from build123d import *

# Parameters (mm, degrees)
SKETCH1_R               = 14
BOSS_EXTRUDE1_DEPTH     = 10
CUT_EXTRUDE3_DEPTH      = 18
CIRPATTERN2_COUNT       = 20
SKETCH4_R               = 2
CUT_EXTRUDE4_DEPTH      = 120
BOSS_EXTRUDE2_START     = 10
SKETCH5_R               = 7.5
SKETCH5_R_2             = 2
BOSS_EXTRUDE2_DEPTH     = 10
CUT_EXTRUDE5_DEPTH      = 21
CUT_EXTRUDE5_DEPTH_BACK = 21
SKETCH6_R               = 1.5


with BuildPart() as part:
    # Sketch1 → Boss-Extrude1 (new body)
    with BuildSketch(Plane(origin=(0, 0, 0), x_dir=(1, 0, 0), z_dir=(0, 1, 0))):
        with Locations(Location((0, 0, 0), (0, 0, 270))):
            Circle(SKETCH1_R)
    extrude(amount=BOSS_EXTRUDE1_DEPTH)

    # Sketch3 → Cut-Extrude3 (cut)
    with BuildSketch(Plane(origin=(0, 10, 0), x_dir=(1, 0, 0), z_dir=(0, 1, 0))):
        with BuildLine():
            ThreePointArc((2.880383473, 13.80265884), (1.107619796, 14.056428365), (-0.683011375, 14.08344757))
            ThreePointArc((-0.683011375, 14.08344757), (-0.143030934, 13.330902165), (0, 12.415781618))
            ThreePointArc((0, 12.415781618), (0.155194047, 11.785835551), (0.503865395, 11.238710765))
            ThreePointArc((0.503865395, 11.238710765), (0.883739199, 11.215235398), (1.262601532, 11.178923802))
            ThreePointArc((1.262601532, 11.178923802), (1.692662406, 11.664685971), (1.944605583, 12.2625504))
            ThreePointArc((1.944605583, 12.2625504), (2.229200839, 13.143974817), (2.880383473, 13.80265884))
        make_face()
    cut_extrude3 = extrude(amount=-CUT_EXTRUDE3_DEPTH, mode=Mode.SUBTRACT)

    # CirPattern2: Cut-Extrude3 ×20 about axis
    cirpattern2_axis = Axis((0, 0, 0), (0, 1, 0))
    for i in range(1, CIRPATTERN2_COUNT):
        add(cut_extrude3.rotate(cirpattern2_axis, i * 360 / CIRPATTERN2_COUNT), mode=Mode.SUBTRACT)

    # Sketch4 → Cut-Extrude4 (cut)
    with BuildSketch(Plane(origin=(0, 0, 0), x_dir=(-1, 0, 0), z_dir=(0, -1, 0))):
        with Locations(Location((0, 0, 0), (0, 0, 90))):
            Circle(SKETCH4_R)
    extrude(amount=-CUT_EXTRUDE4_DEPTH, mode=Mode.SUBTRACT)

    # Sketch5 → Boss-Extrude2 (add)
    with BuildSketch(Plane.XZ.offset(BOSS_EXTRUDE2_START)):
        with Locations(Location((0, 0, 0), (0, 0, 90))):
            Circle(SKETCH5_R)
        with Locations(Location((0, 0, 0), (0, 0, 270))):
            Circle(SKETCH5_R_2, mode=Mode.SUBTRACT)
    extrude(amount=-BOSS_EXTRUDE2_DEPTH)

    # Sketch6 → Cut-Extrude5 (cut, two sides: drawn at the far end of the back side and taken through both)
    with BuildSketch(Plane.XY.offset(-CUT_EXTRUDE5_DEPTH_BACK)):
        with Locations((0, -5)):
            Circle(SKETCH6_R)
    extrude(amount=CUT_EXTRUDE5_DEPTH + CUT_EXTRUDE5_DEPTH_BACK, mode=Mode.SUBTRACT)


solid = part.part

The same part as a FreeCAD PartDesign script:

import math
import FreeCAD as App
import Part
import Sketcher
Q = App.Units.Quantity

doc = App.newDocument("Part")
body = doc.addObject("PartDesign::Body", "Body")

# Sketch on XZ plane
sketch1 = body.newObject("Sketcher::SketchObject", "Sketch")
sketch1.AttachmentSupport = (doc.getObject("XZ_Plane"), [""])
sketch1.MapMode = "FlatFace"
sketch1.addGeometry(Part.Circle(App.Vector(0, 0, 0), App.Vector(0, 0, 1), 14), False)
sketch1.addConstraint([
    Sketcher.Constraint("Coincident", 0, 3, -1, 1),
    Sketcher.Constraint("Diameter", 0, Q("28 mm")),
])
pad1 = body.newObject("PartDesign::Pad", "Pad")
pad1.Profile = sketch1
pad1.Length = 10
pad1.Reversed = True

# Sketch on XZ plane
sketch2 = body.newObject("Sketcher::SketchObject", "Sketch001")
sketch2.AttachmentSupport = (doc.getObject("XZ_Plane"), [""])
sketch2.MapMode = "FlatFace"
sketch2.AttachmentOffset = App.Placement(App.Vector(0, 0, -10), App.Rotation())
sketch2.addGeometry([
    Part.ArcOfCircle(Part.Circle(App.Vector(0, 0, 0), App.Vector(0, 0, 1), 14.1), math.radians(-92.78), math.radians(-78.21)),  # 0
    Part.ArcOfCircle(Part.Circle(App.Vector(-2, -12.6, 0), App.Vector(0, 0, 1), 2), math.radians(-49), math.radians(5)),  # 1
    Part.ArcOfCircle(Part.Circle(App.Vector(2, -12.6, 0), App.Vector(0, 0, 1), 2), math.radians(138), math.radians(175)),  # 2
    Part.ArcOfCircle(Part.Circle(App.Vector(0, 0, 0), App.Vector(0, 0, 1), 11.2), math.radians(-87.43), math.radians(-83.56)),  # 3
    Part.ArcOfCircle(Part.Circle(App.Vector(0, -12.7, 0), App.Vector(0, 0, 1), 2), math.radians(14), math.radians(51)),  # 4
    Part.ArcOfCircle(Part.Circle(App.Vector(3.9, -12.1, 0), App.Vector(0, 0, 1), 2), math.radians(-175), math.radians(-122)),  # 5
], False)
sketch2.addConstraint([
    Sketcher.Constraint("Coincident", 0, 1, 1, 1),
    Sketcher.Constraint("Coincident", 1, 2, 2, 2),
    Sketcher.Constraint("Coincident", 2, 1, 3, 1),
    Sketcher.Constraint("Coincident", 3, 2, 4, 2),
    Sketcher.Constraint("Coincident", 4, 1, 5, 1),
    Sketcher.Constraint("Coincident", 5, 2, 0, 2),
    Sketcher.Constraint("Coincident", 0, 3, -1, 1),
    Sketcher.Constraint("Coincident", 3, 3, -1, 1),
    Sketcher.Constraint("Equal", 1, 2),
    Sketcher.Constraint("Equal", 2, 4),
    Sketcher.Constraint("Equal", 4, 5),
    Sketcher.Constraint("Symmetric", 1, 3, 2, 3, -2),
    Sketcher.Constraint("PointOnObject", 4, 3, -2),
    Sketcher.Constraint("Radius", 1, Q("2 mm")),
    Sketcher.Constraint("Radius", 0, Q("14.1 mm")),
    Sketcher.Constraint("Radius", 3, Q("11.249999 mm")),
    Sketcher.Constraint("DistanceY", 4, 3, -1, 1, Q("12.73 mm")),
    Sketcher.Constraint("DistanceX", 1, 3, -1, 1, Q("1.99382 mm")),
    Sketcher.Constraint("DistanceY", 1, 3, -1, 1, Q("12.572891 mm")),
    Sketcher.Constraint("DistanceY", 5, 3, -1, 1, Q("12.105441 mm")),
    Sketcher.Constraint("DistanceY", 4, 1, -1, 1, Q("12.26255 mm")),
])
pocket1 = body.newObject("PartDesign::Pocket", "Pocket")
pocket1.Profile = sketch2
pocket1.Length = 18
pocket1.Reversed = True
doc.recompute()

polarpattern = body.newObject("PartDesign::PolarPattern", "PolarPattern")
polarpattern.Originals = [pocket1]
polarpattern.Axis = (doc.getObject("Y_Axis"), [""])
polarpattern.Angle = 360
polarpattern.Occurrences = 20
body.Tip = polarpattern

# Sketch on XZ plane
sketch3 = body.newObject("Sketcher::SketchObject", "Sketch002")
sketch3.AttachmentSupport = (doc.getObject("XZ_Plane"), [""])
sketch3.MapMode = "FlatFace"
sketch3.addGeometry(Part.Circle(App.Vector(0, 0, 0), App.Vector(0, 0, 1), 2), False)
sketch3.addConstraint([
    Sketcher.Constraint("Coincident", 0, 3, -1, 1),
    Sketcher.Constraint("Diameter", 0, Q("4 mm")),
])
pocket2 = body.newObject("PartDesign::Pocket", "Pocket001")
pocket2.Profile = sketch3
pocket2.Length = 120

# Sketch on XZ plane
sketch4 = body.newObject("Sketcher::SketchObject", "Sketch003")
sketch4.AttachmentSupport = (doc.getObject("XZ_Plane"), [""])
sketch4.MapMode = "FlatFace"
sketch4.AttachmentOffset = App.Placement(App.Vector(0, 0, 10), App.Rotation())
sketch4.addGeometry([
    Part.Circle(App.Vector(0, 0, 0), App.Vector(0, 0, 1), 7.5),
    Part.Circle(App.Vector(0, 0, 0), App.Vector(0, 0, 1), 2),
], False)
sketch4.addConstraint([
    Sketcher.Constraint("Coincident", 0, 3, -1, 1),
    Sketcher.Constraint("Coincident", 1, 3, -1, 1),
    Sketcher.Constraint("Diameter", 0, Q("15 mm")),
    Sketcher.Constraint("Diameter", 1, Q("4 mm")),
])
pad2 = body.newObject("PartDesign::Pad", "Pad001")
pad2.Profile = sketch4
pad2.Length = 10
pad2.Reversed = True

# Sketch on XY plane
sketch5 = body.newObject("Sketcher::SketchObject", "Sketch004")
sketch5.AttachmentSupport = (doc.getObject("XY_Plane"), [""])
sketch5.MapMode = "FlatFace"
sketch5.addGeometry(Part.Circle(App.Vector(0, -5, 0), App.Vector(0, 0, 1), 1.5), False)
sketch5.addConstraint([
    Sketcher.Constraint("PointOnObject", 0, 3, -2),
    Sketcher.Constraint("Diameter", 0, Q("3 mm")),
    Sketcher.Constraint("DistanceY", 0, 3, -1, 1, Q("5 mm")),
])
pocket3 = body.newObject("PartDesign::Pocket", "Pocket002")
pocket3.Profile = sketch5
pocket3.Type = "ThroughAll"
pocket3.Midplane = True

doc.recompute()
